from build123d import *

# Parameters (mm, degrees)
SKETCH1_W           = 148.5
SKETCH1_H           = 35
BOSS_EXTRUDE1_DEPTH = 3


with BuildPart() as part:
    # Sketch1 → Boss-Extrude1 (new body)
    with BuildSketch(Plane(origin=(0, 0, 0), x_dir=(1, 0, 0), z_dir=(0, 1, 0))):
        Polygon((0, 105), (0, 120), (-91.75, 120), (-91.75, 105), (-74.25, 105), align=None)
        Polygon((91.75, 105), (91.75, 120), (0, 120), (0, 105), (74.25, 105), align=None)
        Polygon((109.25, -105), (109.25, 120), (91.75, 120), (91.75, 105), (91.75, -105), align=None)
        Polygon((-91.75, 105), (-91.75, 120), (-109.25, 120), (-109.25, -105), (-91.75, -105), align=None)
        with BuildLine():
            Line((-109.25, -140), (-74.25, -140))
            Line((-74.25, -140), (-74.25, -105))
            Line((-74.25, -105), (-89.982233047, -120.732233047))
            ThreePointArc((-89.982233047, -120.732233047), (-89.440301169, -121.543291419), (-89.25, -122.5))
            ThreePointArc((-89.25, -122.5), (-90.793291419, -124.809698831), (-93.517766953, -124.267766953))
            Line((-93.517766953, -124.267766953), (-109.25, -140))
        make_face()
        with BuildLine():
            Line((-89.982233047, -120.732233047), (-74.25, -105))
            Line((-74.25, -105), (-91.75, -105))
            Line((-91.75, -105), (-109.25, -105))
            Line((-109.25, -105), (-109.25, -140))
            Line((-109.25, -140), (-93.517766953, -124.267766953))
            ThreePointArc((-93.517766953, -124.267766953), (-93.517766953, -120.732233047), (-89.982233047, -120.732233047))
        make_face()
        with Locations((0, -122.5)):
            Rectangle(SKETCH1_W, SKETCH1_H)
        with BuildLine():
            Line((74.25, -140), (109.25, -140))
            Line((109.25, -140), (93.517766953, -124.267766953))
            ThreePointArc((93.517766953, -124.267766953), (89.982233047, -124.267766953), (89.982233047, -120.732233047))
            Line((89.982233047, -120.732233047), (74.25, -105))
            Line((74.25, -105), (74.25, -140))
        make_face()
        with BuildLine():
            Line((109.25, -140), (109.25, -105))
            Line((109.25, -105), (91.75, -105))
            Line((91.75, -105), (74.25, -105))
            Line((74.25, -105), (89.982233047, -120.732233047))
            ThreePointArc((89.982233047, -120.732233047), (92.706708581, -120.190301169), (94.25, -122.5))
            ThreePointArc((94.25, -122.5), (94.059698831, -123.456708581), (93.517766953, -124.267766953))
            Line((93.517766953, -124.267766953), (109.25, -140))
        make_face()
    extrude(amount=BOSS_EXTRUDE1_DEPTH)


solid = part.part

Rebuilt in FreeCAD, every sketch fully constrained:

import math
import FreeCAD as App
import Part
import Sketcher
from FreeCAD import Vector

doc = App.newDocument("Part")
body = doc.addObject("PartDesign::Body", "Body")

# Sketch on XZ plane
sketch1 = body.newObject("Sketcher::SketchObject", "Sketch")
sketch1.AttachmentSupport = (doc.getObject("XZ_Plane"), [""])
sketch1.MapMode = "FlatFace"
sketch1.addGeometry(Part.LineSegment(Vector(109.25, -120, 0), Vector(-109.25, -120, 0)), False)
sketch1.addGeometry(Part.LineSegment(Vector(-109.25, -120, 0), Vector(-109.25, 140, 0)), False)
sketch1.addGeometry(Part.LineSegment(Vector(-109.25, 140, 0), Vector(109.25, 140, 0)), False)
sketch1.addGeometry(Part.LineSegment(Vector(109.25, 140, 0), Vector(109.25, -120, 0)), False)
sketch1.addGeometry(Part.LineSegment(Vector(-91.75, -105, 0), Vector(91.75, -105, 0)), False)
sketch1.addGeometry(Part.LineSegment(Vector(91.75, -105, 0), Vector(91.75, 105, 0)), False)
sketch1.addGeometry(Part.LineSegment(Vector(91.75, 105, 0), Vector(-91.75, 105, 0)), False)
sketch1.addGeometry(Part.LineSegment(Vector(-91.75, 105, 0), Vector(-91.75, -105, 0)), False)
sketch1.addGeometry(Part.ArcOfCircle(Part.Circle(Vector(91.75, 122.5, 0), Vector(0, 0, 1), 2.5), math.radians(45), math.radians(225)), False)
sketch1.addGeometry(Part.ArcOfCircle(Part.Circle(Vector(91.75, 122.5, 0), Vector(0, 0, 1), 2.5), math.radians(-135), math.radians(0)), False)
sketch1.addGeometry(Part.ArcOfCircle(Part.Circle(Vector(91.75, 122.5, 0), Vector(0, 0, 1), 2.5), math.radians(0), math.radians(45)), False)
sketch1.addGeometry(Part.ArcOfCircle(Part.Circle(Vector(-91.75, 122.5, 0), Vector(0, 0, 1), 2.5), math.radians(135), math.radians(315)), False)
sketch1.addGeometry(Part.ArcOfCircle(Part.Circle(Vector(-91.75, 122.5, 0), Vector(0, 0, 1), 2.5), math.radians(-45), math.radians(0)), False)
sketch1.addGeometry(Part.ArcOfCircle(Part.Circle(Vector(-91.75, 122.5, 0), Vector(0, 0, 1), 2.5), math.radians(0), math.radians(135)), False)
sketch1.addConstraint(Sketcher.Constraint("Coincident", 0, 2, 1, 1))
sketch1.addConstraint(Sketcher.Constraint("Coincident", 1, 2, 2, 1))
sketch1.addConstraint(Sketcher.Constraint("Coincident", 2, 2, 3, 1))
sketch1.addConstraint(Sketcher.Constraint("Coincident", 3, 2, 0, 1))
sketch1.addConstraint(Sketcher.Constraint("Coincident", 4, 2, 5, 1))
sketch1.addConstraint(Sketcher.Constraint("Coincident", 5, 2, 6, 1))
sketch1.addConstraint(Sketcher.Constraint("Coincident", 6, 2, 7, 1))
sketch1.addConstraint(Sketcher.Constraint("Coincident", 7, 2, 4, 1))
sketch1.addConstraint(Sketcher.Constraint("Tangent", 8, 2, 9, 1))
sketch1.addConstraint(Sketcher.Constraint("Tangent", 9, 2, 10, 1))
sketch1.addConstraint(Sketcher.Constraint("Tangent", 10, 2, 8, 1))
sketch1.addConstraint(Sketcher.Constraint("Tangent", 11, 2, 12, 1))
sketch1.addConstraint(Sketcher.Constraint("Tangent", 12, 2, 13, 1))
sketch1.addConstraint(Sketcher.Constraint("Tangent", 13, 2, 11, 1))
sketch1.addConstraint(Sketcher.Constraint("Horizontal", 0))
sketch1.addConstraint(Sketcher.Constraint("Vertical", 1))
sketch1.addConstraint(Sketcher.Constraint("Horizontal", 2))
sketch1.addConstraint(Sketcher.Constraint("Vertical", 3))
sketch1.addConstraint(Sketcher.Constraint("Horizontal", 4))
sketch1.addConstraint(Sketcher.Constraint("Vertical", 5))
sketch1.addConstraint(Sketcher.Constraint("Horizontal", 6))
sketch1.addConstraint(Sketcher.Constraint("Vertical", 7))
sketch1.addConstraint(Sketcher.Constraint("Equal", 10, 11))
sketch1.addConstraint(Sketcher.Constraint("Symmetric", 4, 2, 6, 2, -1, 1))
sketch1.addConstraint(Sketcher.Constraint("Symmetric", 8, 3, 11, 3, -2))
sketch1.addConstraint(Sketcher.Constraint("Horizontal", 13, 3, 9, 2))
sketch1.addConstraint(Sketcher.Constraint("Horizontal", 8, 2, 11, 2))
sketch1.addConstraint(Sketcher.Constraint("Horizontal", 9, 2, 12, 2))
sketch1.addConstraint(Sketcher.Constraint("Horizontal", 10, 2, 13, 2))
sketch1.addConstraint(Sketcher.Constraint("Vertical", 10, 3, 4, 2))
sketch1.addConstraint(Sketcher.Constraint("Radius", 8, 2.5))
sketch1.addConstraint(Sketcher.Constraint("DistanceY", 1, 1, 1, 2, 260.0))
sketch1.addConstraint(Sketcher.Constraint("DistanceY", 5, 1, 5, 2, 210.0))
sketch1.addConstraint(Sketcher.Constraint("DistanceX", 0, 2, 0, 1, 218.5))
sketch1.addConstraint(Sketcher.Constraint("DistanceX", 4, 1, 4, 2, 183.5))
sketch1.addConstraint(Sketcher.Constraint("DistanceY", 0, 2, -1, 1, 120.0))
sketch1.addConstraint(Sketcher.Constraint("DistanceX", 0, 2, 10, 3, 201.0))
sketch1.addConstraint(Sketcher.Constraint("DistanceY", -1, 1, 8, 3, 122.5))
sketch1.addConstraint(Sketcher.Constraint("DistanceX", -1, 1, 8, 2, 89.982233))
sketch1.addConstraint(Sketcher.Constraint("DistanceX", -1, 1, 10, 2, 93.517767))
pad1 = body.newObject("PartDesign::Pad", "Pad")
pad1.Profile = sketch1
pad1.Length = 3
pad1.Reversed = True

doc.recompute()
